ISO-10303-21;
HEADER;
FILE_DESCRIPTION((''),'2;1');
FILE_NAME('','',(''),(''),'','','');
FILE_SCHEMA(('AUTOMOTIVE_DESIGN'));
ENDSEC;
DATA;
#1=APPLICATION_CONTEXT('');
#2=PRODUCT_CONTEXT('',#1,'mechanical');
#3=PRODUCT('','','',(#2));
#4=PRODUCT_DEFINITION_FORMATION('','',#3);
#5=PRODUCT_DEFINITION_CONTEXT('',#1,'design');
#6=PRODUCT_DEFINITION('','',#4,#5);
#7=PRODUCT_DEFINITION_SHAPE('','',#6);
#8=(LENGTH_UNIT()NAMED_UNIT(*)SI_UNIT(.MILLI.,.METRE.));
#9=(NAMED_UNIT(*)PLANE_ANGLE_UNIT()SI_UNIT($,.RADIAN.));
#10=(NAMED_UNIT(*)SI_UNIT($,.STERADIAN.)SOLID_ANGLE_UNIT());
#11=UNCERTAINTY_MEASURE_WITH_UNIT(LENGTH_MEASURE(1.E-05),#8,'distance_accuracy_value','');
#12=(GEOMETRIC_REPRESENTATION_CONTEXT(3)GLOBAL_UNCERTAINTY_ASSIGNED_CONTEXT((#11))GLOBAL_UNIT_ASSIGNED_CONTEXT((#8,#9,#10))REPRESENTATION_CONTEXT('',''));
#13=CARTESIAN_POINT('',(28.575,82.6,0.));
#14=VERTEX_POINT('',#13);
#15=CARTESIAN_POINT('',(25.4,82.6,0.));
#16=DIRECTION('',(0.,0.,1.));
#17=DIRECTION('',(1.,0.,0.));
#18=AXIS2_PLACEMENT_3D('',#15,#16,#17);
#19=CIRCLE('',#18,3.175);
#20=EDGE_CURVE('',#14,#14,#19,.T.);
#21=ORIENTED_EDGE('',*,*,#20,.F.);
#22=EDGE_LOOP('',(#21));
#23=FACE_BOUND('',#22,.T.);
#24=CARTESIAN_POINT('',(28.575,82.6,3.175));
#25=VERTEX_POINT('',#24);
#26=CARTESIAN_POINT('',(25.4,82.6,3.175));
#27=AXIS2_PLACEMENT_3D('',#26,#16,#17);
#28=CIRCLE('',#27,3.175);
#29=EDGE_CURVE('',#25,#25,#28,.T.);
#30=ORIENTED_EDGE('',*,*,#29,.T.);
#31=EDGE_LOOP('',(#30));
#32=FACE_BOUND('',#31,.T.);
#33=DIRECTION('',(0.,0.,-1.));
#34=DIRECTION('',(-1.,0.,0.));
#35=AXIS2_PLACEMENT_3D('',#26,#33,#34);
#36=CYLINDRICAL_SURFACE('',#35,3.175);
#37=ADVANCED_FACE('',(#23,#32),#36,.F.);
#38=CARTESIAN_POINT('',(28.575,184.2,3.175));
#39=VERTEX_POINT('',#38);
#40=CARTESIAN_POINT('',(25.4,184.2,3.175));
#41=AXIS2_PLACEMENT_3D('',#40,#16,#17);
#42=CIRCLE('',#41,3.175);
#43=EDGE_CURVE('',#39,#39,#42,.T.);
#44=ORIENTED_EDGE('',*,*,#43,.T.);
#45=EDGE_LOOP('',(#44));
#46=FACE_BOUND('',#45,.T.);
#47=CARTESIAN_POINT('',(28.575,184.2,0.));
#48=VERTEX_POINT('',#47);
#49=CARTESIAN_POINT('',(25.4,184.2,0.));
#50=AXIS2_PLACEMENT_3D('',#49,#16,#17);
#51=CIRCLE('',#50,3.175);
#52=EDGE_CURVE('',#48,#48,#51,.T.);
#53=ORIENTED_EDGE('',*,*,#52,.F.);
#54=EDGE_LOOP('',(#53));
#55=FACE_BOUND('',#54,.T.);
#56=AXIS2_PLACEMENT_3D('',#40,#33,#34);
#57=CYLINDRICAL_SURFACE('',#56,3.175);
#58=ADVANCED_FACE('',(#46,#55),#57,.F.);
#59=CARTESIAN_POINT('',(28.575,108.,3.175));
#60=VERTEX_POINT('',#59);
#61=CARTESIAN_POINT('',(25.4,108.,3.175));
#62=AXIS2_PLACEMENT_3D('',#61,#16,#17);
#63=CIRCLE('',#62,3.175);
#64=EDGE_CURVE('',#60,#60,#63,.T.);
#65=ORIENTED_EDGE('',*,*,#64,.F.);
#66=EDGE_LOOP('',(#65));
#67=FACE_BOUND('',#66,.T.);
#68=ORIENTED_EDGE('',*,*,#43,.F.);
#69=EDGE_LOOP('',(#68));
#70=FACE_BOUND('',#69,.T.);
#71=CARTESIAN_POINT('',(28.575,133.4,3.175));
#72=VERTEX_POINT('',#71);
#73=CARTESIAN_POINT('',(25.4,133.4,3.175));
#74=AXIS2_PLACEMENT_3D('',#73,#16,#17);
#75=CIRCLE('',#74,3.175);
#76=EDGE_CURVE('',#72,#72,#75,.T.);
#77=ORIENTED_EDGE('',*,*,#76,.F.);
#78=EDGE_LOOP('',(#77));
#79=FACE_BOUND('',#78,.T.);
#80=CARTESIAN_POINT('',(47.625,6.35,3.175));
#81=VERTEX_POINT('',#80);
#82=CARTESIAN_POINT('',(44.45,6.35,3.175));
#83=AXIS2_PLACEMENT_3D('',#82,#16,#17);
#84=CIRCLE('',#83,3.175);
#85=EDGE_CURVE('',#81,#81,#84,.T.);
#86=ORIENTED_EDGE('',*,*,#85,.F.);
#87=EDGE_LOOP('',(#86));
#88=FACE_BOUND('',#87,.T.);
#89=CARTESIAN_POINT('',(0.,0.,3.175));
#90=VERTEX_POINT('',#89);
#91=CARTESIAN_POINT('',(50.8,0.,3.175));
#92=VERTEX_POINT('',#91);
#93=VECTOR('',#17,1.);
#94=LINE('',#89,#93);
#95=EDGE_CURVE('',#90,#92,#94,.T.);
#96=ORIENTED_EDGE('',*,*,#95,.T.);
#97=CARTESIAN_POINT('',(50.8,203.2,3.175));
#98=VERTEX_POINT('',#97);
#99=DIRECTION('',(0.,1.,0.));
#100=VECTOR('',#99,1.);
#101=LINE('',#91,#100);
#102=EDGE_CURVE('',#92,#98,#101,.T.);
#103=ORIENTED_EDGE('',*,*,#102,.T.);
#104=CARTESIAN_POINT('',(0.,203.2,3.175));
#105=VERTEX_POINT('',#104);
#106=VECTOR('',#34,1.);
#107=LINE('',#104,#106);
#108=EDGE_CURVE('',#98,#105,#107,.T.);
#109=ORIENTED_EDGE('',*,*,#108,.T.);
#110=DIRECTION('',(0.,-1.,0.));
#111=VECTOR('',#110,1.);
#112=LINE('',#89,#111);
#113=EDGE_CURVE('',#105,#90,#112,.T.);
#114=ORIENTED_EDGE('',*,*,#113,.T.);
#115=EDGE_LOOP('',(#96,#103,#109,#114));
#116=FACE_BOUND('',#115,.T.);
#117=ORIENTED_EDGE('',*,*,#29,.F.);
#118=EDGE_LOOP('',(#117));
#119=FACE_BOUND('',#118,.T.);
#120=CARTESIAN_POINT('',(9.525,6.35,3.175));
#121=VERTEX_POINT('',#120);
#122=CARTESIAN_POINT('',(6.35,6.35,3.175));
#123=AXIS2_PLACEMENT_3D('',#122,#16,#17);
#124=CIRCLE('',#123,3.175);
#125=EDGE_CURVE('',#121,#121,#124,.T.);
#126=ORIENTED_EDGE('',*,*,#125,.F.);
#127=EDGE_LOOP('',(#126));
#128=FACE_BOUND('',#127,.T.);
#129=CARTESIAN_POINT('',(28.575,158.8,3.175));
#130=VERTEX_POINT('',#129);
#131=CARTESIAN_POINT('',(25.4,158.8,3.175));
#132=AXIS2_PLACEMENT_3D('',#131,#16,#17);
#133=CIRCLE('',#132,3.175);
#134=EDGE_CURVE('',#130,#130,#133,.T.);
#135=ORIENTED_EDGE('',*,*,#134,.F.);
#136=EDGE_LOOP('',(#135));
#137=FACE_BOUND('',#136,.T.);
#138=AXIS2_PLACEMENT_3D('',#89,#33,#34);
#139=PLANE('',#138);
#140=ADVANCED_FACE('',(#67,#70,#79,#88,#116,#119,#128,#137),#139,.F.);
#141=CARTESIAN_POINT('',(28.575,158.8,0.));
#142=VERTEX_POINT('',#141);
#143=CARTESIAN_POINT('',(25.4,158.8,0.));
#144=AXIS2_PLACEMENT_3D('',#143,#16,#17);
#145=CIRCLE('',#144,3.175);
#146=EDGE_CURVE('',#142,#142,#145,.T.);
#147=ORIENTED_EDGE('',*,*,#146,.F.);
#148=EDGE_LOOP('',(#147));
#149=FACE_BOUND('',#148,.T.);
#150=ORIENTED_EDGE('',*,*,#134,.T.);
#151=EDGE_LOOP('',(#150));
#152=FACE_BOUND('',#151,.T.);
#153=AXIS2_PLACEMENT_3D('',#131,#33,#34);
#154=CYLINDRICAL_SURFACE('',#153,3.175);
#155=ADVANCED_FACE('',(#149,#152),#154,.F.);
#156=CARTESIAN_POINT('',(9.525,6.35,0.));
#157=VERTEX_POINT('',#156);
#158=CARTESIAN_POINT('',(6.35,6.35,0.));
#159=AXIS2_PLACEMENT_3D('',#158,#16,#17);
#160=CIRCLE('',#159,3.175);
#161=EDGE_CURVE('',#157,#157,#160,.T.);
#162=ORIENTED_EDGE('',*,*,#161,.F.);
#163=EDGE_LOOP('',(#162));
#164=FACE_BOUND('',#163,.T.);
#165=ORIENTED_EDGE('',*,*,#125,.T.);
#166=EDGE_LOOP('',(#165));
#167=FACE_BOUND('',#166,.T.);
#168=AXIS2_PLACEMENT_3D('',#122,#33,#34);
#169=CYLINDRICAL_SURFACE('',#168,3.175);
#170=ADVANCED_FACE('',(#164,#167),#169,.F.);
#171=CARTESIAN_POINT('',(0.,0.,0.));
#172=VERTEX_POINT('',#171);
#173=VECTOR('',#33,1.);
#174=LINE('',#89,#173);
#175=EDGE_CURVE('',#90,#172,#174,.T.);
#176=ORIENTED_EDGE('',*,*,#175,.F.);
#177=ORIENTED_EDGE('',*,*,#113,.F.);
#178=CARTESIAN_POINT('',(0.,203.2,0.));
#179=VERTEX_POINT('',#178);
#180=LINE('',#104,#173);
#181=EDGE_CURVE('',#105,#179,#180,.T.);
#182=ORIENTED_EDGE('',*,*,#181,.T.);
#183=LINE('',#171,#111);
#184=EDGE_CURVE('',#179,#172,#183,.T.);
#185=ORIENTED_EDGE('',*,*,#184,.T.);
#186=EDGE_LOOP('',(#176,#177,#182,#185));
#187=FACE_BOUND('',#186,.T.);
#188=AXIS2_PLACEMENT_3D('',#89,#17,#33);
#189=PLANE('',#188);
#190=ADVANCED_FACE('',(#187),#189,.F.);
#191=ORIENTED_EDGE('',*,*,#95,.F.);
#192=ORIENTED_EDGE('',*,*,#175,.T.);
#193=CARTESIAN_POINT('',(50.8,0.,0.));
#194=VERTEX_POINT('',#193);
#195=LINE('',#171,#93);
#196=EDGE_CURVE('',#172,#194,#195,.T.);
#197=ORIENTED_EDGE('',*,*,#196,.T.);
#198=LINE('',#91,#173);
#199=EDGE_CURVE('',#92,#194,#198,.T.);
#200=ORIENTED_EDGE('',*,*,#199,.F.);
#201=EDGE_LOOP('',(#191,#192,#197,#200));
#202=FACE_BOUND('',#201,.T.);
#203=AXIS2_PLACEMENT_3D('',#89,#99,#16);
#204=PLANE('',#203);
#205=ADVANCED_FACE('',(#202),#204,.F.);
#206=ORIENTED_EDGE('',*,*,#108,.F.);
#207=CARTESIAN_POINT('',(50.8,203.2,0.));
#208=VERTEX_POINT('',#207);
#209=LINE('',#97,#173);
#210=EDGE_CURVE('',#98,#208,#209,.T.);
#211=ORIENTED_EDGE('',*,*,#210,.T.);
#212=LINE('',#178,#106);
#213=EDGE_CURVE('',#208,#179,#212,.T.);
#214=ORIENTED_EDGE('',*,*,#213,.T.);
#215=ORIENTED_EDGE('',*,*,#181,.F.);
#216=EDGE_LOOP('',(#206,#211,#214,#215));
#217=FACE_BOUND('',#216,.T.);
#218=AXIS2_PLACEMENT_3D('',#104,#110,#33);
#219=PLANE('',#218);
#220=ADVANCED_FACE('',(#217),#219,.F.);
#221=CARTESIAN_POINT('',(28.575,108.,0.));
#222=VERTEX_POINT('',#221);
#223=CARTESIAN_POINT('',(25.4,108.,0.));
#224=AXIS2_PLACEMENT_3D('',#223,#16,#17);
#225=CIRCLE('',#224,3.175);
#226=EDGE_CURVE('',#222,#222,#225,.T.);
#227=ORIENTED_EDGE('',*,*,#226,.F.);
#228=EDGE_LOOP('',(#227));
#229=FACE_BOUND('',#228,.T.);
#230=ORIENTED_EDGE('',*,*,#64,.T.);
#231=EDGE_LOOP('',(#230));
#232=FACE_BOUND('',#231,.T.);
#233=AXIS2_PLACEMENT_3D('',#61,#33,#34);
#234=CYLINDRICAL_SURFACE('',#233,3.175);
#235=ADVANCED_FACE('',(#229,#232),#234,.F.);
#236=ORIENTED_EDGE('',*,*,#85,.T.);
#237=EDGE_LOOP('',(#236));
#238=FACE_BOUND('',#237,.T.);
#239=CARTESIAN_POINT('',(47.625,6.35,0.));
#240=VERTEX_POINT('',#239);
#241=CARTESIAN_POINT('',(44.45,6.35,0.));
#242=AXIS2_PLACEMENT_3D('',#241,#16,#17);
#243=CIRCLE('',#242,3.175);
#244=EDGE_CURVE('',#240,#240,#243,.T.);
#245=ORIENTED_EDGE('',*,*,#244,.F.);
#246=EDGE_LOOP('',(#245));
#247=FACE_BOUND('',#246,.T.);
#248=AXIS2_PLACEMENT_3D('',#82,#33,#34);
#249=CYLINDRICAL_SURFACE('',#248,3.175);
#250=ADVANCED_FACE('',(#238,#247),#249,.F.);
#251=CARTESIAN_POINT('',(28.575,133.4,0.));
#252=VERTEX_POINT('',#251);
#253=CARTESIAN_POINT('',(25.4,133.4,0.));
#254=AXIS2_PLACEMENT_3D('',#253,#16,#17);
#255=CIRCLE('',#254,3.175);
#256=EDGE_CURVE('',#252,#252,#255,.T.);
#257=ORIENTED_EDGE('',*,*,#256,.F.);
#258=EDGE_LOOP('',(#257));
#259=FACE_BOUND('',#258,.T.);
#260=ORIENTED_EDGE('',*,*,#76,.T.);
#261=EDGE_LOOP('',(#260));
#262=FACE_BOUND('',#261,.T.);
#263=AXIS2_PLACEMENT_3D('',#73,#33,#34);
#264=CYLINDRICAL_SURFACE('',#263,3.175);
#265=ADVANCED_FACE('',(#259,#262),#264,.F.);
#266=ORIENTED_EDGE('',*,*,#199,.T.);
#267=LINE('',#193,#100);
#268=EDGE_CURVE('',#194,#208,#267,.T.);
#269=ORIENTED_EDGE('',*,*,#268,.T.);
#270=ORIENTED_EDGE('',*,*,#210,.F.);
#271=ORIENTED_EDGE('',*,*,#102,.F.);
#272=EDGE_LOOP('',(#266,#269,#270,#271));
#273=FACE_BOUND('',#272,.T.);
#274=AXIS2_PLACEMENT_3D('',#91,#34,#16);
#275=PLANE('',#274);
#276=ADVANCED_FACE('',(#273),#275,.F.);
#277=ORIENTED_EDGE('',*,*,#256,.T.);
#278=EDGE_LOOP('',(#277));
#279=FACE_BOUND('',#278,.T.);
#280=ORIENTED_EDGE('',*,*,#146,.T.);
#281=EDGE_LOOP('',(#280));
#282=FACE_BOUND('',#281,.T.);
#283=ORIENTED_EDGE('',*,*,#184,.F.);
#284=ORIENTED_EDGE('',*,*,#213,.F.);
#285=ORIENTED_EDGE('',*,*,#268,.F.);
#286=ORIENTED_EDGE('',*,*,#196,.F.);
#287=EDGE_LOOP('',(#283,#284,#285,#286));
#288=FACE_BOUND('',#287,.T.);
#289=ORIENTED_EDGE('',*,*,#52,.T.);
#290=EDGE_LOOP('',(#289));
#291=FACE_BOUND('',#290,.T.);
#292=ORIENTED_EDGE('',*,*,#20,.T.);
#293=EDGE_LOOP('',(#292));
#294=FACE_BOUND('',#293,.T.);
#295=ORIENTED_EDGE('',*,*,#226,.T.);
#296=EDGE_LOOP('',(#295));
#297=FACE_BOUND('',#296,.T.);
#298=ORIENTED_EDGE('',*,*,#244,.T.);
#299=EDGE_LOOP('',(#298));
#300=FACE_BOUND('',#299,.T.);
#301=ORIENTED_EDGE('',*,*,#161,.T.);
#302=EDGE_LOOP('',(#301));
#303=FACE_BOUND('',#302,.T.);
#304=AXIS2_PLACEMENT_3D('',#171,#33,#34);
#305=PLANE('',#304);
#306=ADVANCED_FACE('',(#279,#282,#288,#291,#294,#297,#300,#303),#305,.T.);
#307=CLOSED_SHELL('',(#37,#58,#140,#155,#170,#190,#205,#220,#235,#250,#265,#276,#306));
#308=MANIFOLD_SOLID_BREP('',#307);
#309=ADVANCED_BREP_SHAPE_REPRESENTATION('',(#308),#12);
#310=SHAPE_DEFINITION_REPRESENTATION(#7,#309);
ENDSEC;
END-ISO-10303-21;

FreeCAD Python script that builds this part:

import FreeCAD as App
import Part
import Sketcher
from FreeCAD import Vector
Q = App.Units.Quantity

doc = App.newDocument("Part")
body = doc.addObject("PartDesign::Body", "Body")

# Sketch on XY plane
sketch1 = body.newObject("Sketcher::SketchObject", "Sketch")
sketch1.AttachmentSupport = (doc.getObject("XY_Plane"), [""])
sketch1.MapMode = "FlatFace"
sketch1.addGeometry([
    Part.LineSegment(Vector(0, 203.2, 0), Vector(0, 0, 0)),  # 0
    Part.LineSegment(Vector(0, 0, 0), Vector(50.8, 0, 0)),  # 1
    Part.LineSegment(Vector(50.8, 0, 0), Vector(50.8, 203.2, 0)),  # 2
    Part.LineSegment(Vector(50.8, 203.2, 0), Vector(0, 203.2, 0)),  # 3
    Part.Circle(Vector(6.35, 6.35, 0), Vector(0, 0, 1), 3.175),  # 4
    Part.Circle(Vector(25.4, 82.6, 0), Vector(0, 0, 1), 3.175),  # 5
    Part.Circle(Vector(44.45, 6.35, 0), Vector(0, 0, 1), 3.175),  # 6
    Part.Circle(Vector(25.4, 108, 0), Vector(0, 0, 1), 3.175),  # 7
    Part.Circle(Vector(25.4, 133.4, 0), Vector(0, 0, 1), 3.175),  # 8
    Part.Circle(Vector(25.4, 158.8, 0), Vector(0, 0, 1), 3.175),  # 9
    Part.Circle(Vector(25.4, 184.2, 0), Vector(0, 0, 1), 3.175),  # 10
], False)
sketch1.addConstraint([
    Sketcher.Constraint("Coincident", 0, 2, 1, 1),
    Sketcher.Constraint("Coincident", 1, 2, 2, 1),
    Sketcher.Constraint("Coincident", 2, 2, 3, 1),
    Sketcher.Constraint("Coincident", 3, 2, 0, 1),
    Sketcher.Constraint("Vertical", 0),
    Sketcher.Constraint("Horizontal", 1),
    Sketcher.Constraint("Vertical", 2),
    Sketcher.Constraint("Horizontal", 3),
    Sketcher.Constraint("Coincident", 0, 2, -1, 1),
    Sketcher.Constraint("Equal", 4, 5),
    Sketcher.Constraint("Equal", 5, 6),
    Sketcher.Constraint("Equal", 6, 7),
    Sketcher.Constraint("Equal", 7, 8),
    Sketcher.Constraint("Equal", 8, 9),
    Sketcher.Constraint("Equal", 9, 10),
    Sketcher.Constraint("Horizontal", 4, 3, 6, 3),
    Sketcher.Constraint("Vertical", 5, 3, 7, 3),
    Sketcher.Constraint("Vertical", 7, 3, 8, 3),
    Sketcher.Constraint("Vertical", 8, 3, 9, 3),
    Sketcher.Constraint("Vertical", 9, 3, 10, 3),
    Sketcher.Constraint("Diameter", 4, Q("0.25 in")),
    Sketcher.Constraint("DistanceX", 1, 1, 1, 2, Q("2 in")),
    Sketcher.Constraint("DistanceY", 0, 2, 0, 1, Q("8 in")),
    Sketcher.Constraint("DistanceX", -1, 1, 5, 3, Q("1 in")),
    Sketcher.Constraint("DistanceY", 5, 3, 7, 3, Q("1 in")),
    Sketcher.Constraint("DistanceY", 7, 3, 8, 3, Q("1 in")),
    Sketcher.Constraint("DistanceY", 8, 3, 9, 3, Q("1 in")),
    Sketcher.Constraint("DistanceY", 9, 3, 10, 3, Q("1 in")),
    Sketcher.Constraint("DistanceX", 4, 3, 6, 3, Q("1.5 in")),
    Sketcher.Constraint("DistanceX", -1, 1, 4, 3, Q("0.25 in")),
    Sketcher.Constraint("DistanceY", -1, 1, 4, 3, Q("0.25 in")),
    Sketcher.Constraint("DistanceY", -1, 1, 5, 3, Q("82.6 mm")),
])
pad1 = body.newObject("PartDesign::Pad", "Pad")
pad1.Profile = sketch1
pad1.Length = Q("0.125 in")

doc.recompute()
